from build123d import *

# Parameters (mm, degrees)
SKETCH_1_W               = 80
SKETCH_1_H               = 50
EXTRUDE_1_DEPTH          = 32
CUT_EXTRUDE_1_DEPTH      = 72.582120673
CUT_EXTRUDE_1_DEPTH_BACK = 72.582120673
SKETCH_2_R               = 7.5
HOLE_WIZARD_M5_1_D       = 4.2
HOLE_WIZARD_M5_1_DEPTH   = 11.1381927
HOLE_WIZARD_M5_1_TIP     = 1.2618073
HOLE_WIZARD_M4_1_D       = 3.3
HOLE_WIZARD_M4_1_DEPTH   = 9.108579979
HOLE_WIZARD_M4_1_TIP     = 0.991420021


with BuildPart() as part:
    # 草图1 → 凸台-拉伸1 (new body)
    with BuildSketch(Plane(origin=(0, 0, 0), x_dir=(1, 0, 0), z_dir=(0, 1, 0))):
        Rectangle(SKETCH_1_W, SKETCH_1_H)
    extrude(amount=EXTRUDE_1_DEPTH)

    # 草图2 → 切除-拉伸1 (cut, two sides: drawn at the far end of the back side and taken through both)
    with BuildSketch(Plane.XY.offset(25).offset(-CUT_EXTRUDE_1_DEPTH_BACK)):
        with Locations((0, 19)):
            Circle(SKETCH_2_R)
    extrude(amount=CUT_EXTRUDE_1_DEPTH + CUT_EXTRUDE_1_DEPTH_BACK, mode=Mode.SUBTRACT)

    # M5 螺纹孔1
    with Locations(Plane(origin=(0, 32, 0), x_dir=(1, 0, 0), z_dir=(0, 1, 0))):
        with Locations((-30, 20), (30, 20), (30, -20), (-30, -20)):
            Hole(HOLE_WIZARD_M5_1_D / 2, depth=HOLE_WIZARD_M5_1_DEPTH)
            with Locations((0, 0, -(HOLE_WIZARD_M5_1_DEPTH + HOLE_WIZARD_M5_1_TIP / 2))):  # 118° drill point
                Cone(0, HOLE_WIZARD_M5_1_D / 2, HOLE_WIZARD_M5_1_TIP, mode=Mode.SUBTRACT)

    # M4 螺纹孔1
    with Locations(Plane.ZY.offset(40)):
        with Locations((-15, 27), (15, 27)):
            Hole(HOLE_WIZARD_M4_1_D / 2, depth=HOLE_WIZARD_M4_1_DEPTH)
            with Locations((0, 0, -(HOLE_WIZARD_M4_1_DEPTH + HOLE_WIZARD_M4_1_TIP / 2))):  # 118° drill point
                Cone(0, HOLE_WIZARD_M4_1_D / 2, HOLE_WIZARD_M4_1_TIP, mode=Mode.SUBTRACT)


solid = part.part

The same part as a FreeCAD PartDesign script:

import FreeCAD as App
import Part
import Sketcher
from FreeCAD import Vector

doc = App.newDocument("Part")
body = doc.addObject("PartDesign::Body", "Body")

sketch1 = body.newObject("Sketcher::SketchObject", "Sketch")
sketch1.AttachmentSupport = (doc.getObject("XZ_Plane"), [""])
sketch1.MapMode = "FlatFace"
sketch1.addGeometry(Part.LineSegment(Vector(-40, -25, 0), Vector(-40, 25, 0)), False)
sketch1.addGeometry(Part.LineSegment(Vector(-40, 25, 0), Vector(40, 25, 0)), False)
sketch1.addGeometry(Part.LineSegment(Vector(40, 25, 0), Vector(40, -25, 0)), False)
sketch1.addGeometry(Part.LineSegment(Vector(40, -25, 0), Vector(-40, -25, 0)), False)
sketch1.addConstraint(Sketcher.Constraint("Coincident", 0, 2, 1, 1))
sketch1.addConstraint(Sketcher.Constraint("Coincident", 1, 2, 2, 1))
sketch1.addConstraint(Sketcher.Constraint("Coincident", 2, 2, 3, 1))
sketch1.addConstraint(Sketcher.Constraint("Coincident", 3, 2, 0, 1))
sketch1.addConstraint(Sketcher.Constraint("Vertical", 0))
sketch1.addConstraint(Sketcher.Constraint("Horizontal", 1))
sketch1.addConstraint(Sketcher.Constraint("Vertical", 2))
sketch1.addConstraint(Sketcher.Constraint("Horizontal", 3))
sketch1.addConstraint(Sketcher.Constraint("Symmetric", 0, 2, 2, 2, -1, 1))
sketch1.addConstraint(Sketcher.Constraint("DistanceX", 1, 1, 1, 2, 80.0))
sketch1.addConstraint(Sketcher.Constraint("DistanceY", 0, 1, 0, 2, 50.0))
pad1 = body.newObject("PartDesign::Pad", "Pad")
pad1.Profile = sketch1
pad1.Length = 32
pad1.Reversed = True

sketch2 = body.newObject("Sketcher::SketchObject", "Sketch001")
sketch2.AttachmentSupport = (doc.getObject("XY_Plane"), [""])
sketch2.MapMode = "FlatFace"
sketch2.AttachmentOffset = App.Placement(Vector(0, 0, 25), App.Rotation())
sketch2.addGeometry(Part.Circle(Vector(0, 19, 0), Vector(0, 0, 1), 8), False)
sketch2.addConstraint(Sketcher.Constraint("PointOnObject", 0, 3, -2))
sketch2.addConstraint(Sketcher.Constraint("Diameter", 0, 15.0))
sketch2.addConstraint(Sketcher.Constraint("DistanceY", -1, 1, 0, 3, 19.0))
pocket1 = body.newObject("PartDesign::Pocket", "Pocket")
pocket1.Profile = sketch2
pocket1.Type = "ThroughAll"
pocket1.Midplane = True

sketch3 = body.newObject("Sketcher::SketchObject", "Sketch002")
sketch3.AttachmentSupport = (doc.getObject("XZ_Plane"), [""])
sketch3.MapMode = "FlatFace"
sketch3.AttachmentOffset = App.Placement(Vector(0, 0, -32), App.Rotation())
sketch3.addGeometry(Part.Circle(Vector(-30, -20, 0), Vector(0, 0, 1), 2.1), False)
sketch3.addGeometry(Part.Circle(Vector(30, -20, 0), Vector(0, 0, 1), 2.1), False)
sketch3.addGeometry(Part.Circle(Vector(30, 20, 0), Vector(0, 0, 1), 2.1), False)
sketch3.addGeometry(Part.Circle(Vector(-30, 20, 0), Vector(0, 0, 1), 2.1), False)
sketch3.addConstraint(Sketcher.Constraint("Equal", 0, 1))
sketch3.addConstraint(Sketcher.Constraint("Equal", 1, 2))
sketch3.addConstraint(Sketcher.Constraint("Equal", 2, 3))
sketch3.addConstraint(Sketcher.Constraint("Symmetric", 0, 3, 2, 3, -1, 1))
sketch3.addConstraint(Sketcher.Constraint("Symmetric", 1, 3, 3, 3, -1, 1))
sketch3.addConstraint(Sketcher.Constraint("Symmetric", 0, 3, 1, 3, -2))
sketch3.addConstraint(Sketcher.Constraint("Diameter", 0, 4.2))
sketch3.addConstraint(Sketcher.Constraint("DistanceX", 0, 3, -1, 1, 30.0))
sketch3.addConstraint(Sketcher.Constraint("DistanceY", 0, 3, -1, 1, 20.0))
doc.recompute()
hole = body.newObject("PartDesign::Hole", "Hole")
hole.Profile = sketch3
hole.ThreadType = "None"
hole.Diameter = 4.2
hole.DepthType = "Dimension"
hole.Depth = 11.138193
hole.DrillPoint = "Angled"
hole.DrillPointAngle = 118
hole.Reversed = True

sketch4 = body.newObject("Sketcher::SketchObject", "Sketch003")
sketch4.AttachmentSupport = (doc.getObject("YZ_Plane"), [""])
sketch4.MapMode = "FlatFace"
sketch4.AttachmentOffset = App.Placement(Vector(0, 0, -40), App.Rotation())
sketch4.addGeometry(Part.Circle(Vector(27, -15, 0), Vector(0, 0, 1), 1.6), False)
sketch4.addGeometry(Part.Circle(Vector(27, 15, 0), Vector(0, 0, 1), 1.6), False)
sketch4.addConstraint(Sketcher.Constraint("Equal", 0, 1))
sketch4.addConstraint(Sketcher.Constraint("Symmetric", 0, 3, 1, 3, -1))
sketch4.addConstraint(Sketcher.Constraint("Diameter", 0, 3.3))
sketch4.addConstraint(Sketcher.Constraint("DistanceX", -1, 1, 0, 3, 27.0))
sketch4.addConstraint(Sketcher.Constraint("DistanceY", 0, 3, -1, 1, 15.0))
doc.recompute()
hole2 = body.newObject("PartDesign::Hole", "Hole001")
hole2.Profile = sketch4
hole2.ThreadType = "None"
hole2.Diameter = 3.3
hole2.DepthType = "Dimension"
hole2.Depth = 9.10858
hole2.DrillPoint = "Angled"
hole2.DrillPointAngle = 118
hole2.Reversed = True

doc.recompute()
